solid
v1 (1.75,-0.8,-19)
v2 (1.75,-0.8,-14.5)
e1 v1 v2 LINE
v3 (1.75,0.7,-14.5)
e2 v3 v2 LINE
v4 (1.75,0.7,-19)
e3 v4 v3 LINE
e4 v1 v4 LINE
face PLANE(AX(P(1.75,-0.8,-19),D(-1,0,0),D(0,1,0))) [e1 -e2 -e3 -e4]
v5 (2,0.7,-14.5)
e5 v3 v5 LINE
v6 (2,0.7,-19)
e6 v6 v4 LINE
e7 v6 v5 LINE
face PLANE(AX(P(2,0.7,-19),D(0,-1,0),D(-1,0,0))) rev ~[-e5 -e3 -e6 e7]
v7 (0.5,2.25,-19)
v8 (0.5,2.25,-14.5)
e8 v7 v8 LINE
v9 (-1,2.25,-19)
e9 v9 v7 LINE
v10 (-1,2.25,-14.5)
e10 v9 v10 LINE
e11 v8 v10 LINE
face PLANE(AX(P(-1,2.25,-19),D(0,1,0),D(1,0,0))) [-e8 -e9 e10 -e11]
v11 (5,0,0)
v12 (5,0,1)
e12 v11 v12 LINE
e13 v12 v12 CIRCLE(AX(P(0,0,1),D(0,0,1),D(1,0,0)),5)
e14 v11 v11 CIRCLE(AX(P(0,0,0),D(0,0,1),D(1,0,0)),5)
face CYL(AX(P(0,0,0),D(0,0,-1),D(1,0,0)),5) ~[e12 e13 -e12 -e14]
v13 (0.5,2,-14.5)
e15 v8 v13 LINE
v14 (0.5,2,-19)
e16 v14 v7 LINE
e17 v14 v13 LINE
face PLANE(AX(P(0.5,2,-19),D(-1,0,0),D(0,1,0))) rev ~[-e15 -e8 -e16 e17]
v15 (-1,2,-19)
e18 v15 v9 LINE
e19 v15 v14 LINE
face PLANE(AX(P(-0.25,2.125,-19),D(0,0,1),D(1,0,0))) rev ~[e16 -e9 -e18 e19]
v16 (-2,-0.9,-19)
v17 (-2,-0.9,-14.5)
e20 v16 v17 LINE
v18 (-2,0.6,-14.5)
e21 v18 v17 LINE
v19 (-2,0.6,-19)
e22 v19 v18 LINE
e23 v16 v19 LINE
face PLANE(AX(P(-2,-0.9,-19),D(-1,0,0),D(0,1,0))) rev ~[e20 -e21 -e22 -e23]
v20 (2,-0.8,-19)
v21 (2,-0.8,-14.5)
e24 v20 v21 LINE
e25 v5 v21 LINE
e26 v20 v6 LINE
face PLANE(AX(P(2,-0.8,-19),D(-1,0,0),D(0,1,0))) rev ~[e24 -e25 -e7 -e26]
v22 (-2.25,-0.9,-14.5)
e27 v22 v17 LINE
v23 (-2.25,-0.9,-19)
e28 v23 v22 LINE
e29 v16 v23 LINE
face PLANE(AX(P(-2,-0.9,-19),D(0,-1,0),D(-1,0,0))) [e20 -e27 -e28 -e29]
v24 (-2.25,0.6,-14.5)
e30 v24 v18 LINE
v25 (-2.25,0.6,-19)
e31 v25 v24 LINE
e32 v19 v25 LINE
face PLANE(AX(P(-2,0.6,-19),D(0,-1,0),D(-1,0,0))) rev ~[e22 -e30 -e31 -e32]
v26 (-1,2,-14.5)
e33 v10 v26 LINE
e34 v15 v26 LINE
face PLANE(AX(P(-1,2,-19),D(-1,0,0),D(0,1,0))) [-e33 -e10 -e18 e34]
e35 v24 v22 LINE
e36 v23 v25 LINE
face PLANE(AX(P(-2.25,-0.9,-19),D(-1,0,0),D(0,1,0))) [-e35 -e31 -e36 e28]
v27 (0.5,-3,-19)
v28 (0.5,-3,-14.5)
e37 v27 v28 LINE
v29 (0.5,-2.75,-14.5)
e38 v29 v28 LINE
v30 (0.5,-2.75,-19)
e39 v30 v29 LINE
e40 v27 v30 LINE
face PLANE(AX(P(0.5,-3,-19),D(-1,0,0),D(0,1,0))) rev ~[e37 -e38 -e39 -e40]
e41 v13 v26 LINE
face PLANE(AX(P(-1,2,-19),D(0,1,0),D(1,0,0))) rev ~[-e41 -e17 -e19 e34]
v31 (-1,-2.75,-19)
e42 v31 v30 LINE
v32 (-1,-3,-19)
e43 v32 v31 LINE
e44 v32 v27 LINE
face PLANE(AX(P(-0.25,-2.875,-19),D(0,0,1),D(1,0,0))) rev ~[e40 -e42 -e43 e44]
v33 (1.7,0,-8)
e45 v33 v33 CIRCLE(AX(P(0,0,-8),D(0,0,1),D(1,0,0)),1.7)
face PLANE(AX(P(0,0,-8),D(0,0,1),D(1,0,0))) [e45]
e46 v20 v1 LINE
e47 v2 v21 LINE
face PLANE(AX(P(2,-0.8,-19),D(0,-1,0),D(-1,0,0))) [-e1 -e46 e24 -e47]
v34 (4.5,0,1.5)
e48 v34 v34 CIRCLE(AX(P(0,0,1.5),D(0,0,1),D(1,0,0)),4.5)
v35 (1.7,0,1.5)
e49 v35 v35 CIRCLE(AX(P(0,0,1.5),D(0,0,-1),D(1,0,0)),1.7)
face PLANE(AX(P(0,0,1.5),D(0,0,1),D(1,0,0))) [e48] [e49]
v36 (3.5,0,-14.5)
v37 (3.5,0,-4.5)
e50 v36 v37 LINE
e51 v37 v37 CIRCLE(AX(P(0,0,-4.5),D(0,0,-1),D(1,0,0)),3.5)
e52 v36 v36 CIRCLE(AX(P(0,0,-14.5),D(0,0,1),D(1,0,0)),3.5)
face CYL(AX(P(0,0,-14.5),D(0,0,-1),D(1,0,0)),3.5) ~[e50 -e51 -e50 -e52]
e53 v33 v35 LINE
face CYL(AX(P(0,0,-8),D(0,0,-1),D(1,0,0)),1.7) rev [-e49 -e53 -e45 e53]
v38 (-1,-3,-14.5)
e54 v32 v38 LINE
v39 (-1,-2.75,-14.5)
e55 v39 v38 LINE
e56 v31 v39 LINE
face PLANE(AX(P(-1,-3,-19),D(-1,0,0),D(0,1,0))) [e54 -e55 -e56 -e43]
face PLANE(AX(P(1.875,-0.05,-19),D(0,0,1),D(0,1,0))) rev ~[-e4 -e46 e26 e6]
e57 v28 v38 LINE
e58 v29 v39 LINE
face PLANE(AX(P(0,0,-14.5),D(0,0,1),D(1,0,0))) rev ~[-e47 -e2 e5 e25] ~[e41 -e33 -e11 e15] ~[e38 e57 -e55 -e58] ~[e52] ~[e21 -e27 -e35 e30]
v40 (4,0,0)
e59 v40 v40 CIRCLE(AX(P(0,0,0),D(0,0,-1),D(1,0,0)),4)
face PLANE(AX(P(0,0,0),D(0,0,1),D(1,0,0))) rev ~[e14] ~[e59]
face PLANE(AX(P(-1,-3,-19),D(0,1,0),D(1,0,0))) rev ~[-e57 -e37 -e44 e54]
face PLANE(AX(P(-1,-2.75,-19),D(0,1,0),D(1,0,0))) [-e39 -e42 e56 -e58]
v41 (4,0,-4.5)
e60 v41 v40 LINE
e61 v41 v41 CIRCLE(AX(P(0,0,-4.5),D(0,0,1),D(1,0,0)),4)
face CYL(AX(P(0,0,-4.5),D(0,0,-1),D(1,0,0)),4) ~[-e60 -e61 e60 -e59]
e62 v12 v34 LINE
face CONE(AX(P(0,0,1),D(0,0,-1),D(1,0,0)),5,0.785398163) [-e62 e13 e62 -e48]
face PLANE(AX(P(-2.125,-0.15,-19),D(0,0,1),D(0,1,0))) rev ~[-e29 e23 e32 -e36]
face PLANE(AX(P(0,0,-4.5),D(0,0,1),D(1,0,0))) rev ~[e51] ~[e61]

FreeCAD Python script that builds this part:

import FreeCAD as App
import Part
import Sketcher

V = App.Vector


def edges_at(feature, points):
    """Names of the edges that pass closest to the given points."""
    edges = feature.Shape.Edges
    near = lambda p: min(range(len(edges)), key=lambda i: edges[i].distToShape(Part.Vertex(*p))[0])
    return sorted({f"Edge{near(p) + 1}" for p in points})

doc = App.newDocument("Part")
body = doc.addObject("PartDesign::Body", "Body")

# Sketch on XY plane
sketch1 = doc.addObject("Sketcher::SketchObject", "Sketch")
body.addObject(sketch1)
sketch1.AttachmentSupport = (doc.XY_Plane, [""])
sketch1.MapMode = "FlatFace"
sketch1.AttachmentOffset = App.Placement(V(0, 0, -8), App.Rotation())
sketch1.addGeometry(Part.Circle(V(0, 0, 0), V(0, 0, 1), 1.7), False)
sketch1.addConstraint([
    Sketcher.Constraint("Coincident", 0, 3, -1, 1),
    Sketcher.Constraint("Diameter", 0, 3.4),
])
pad1 = doc.addObject("PartDesign::Pad", "Pad")
body.addObject(pad1)
pad1.Profile = sketch1
pad1.Length = 10
body2 = doc.addObject("PartDesign::Body", "Body001")

# Sketch on XY plane
sketch2 = doc.addObject("Sketcher::SketchObject", "Sketch001")
body2.addObject(sketch2)
sketch2.AttachmentSupport = (doc.getObject("XY_Plane001"), [""])
sketch2.MapMode = "FlatFace"
sketch2.AttachmentOffset = App.Placement(V(0, 0, -14.5), App.Rotation())
sketch2.addGeometry(Part.Circle(V(0, 0, 0), V(0, 0, 1), 3.5), False)
sketch2.addConstraint([
    Sketcher.Constraint("Coincident", 0, 3, -1, 1),
    Sketcher.Constraint("Diameter", 0, 7.0),
])
pad2 = doc.addObject("PartDesign::Pad", "Pad001")
body2.addObject(pad2)
pad2.Profile = sketch2
pad2.Length = 16
body3 = doc.addObject("PartDesign::Body", "Body002")

# Sketch on XY plane
sketch3 = doc.addObject("Sketcher::SketchObject", "Sketch002")
body3.addObject(sketch3)
sketch3.AttachmentSupport = (doc.getObject("XY_Plane002"), [""])
sketch3.MapMode = "FlatFace"
sketch3.AttachmentOffset = App.Placement(V(0, 0, -19), App.Rotation())
sketch3.addGeometry([
    Part.LineSegment(V(-1, -2.75, 0), V(-1, -3, 0)),
    Part.LineSegment(V(-1, -3, 0), V(0.5, -3, 0)),
    Part.LineSegment(V(0.5, -3, 0), V(0.5, -2.75, 0)),
    Part.LineSegment(V(0.5, -2.75, 0), V(-1, -2.75, 0)),
], False)
sketch3.addConstraint([
    Sketcher.Constraint("Coincident", 0, 2, 1, 1),
    Sketcher.Constraint("Coincident", 1, 2, 2, 1),
    Sketcher.Constraint("Coincident", 2, 2, 3, 1),
    Sketcher.Constraint("Coincident", 3, 2, 0, 1),
    Sketcher.Constraint("Vertical", 0),
    Sketcher.Constraint("Horizontal", 1),
    Sketcher.Constraint("Vertical", 2),
    Sketcher.Constraint("Horizontal", 3),
    Sketcher.Constraint("DistanceX", 1, 1, 1, 2, 1.5),
    Sketcher.Constraint("DistanceX", 0, 2, -1, 1, 1.0),
    Sketcher.Constraint("DistanceY", 0, 2, -1, 1, 3.0),
    Sketcher.Constraint("DistanceY", 0, 2, 0, 1, 0.25),
])
pad3 = doc.addObject("PartDesign::Pad", "Pad002")
body3.addObject(pad3)
pad3.Profile = sketch3
pad3.Length = 4.6
body4 = doc.addObject("PartDesign::Body", "Body003")

# Sketch on XY plane
sketch4 = doc.addObject("Sketcher::SketchObject", "Sketch003")
body4.addObject(sketch4)
sketch4.AttachmentSupport = (doc.getObject("XY_Plane003"), [""])
sketch4.MapMode = "FlatFace"
sketch4.AttachmentOffset = App.Placement(V(0, 0, -19), App.Rotation())
sketch4.addGeometry([
    Part.LineSegment(V(-1, 2.25, 0), V(-1, 2, 0)),
    Part.LineSegment(V(-1, 2, 0), V(0.5, 2, 0)),
    Part.LineSegment(V(0.5, 2, 0), V(0.5, 2.25, 0)),
    Part.LineSegment(V(0.5, 2.25, 0), V(-1, 2.25, 0)),
], False)
sketch4.addConstraint([
    Sketcher.Constraint("Coincident", 0, 2, 1, 1),
    Sketcher.Constraint("Coincident", 1, 2, 2, 1),
    Sketcher.Constraint("Coincident", 2, 2, 3, 1),
    Sketcher.Constraint("Coincident", 3, 2, 0, 1),
    Sketcher.Constraint("Vertical", 0),
    Sketcher.Constraint("Horizontal", 1),
    Sketcher.Constraint("Vertical", 2),
    Sketcher.Constraint("Horizontal", 3),
    Sketcher.Constraint("DistanceX", 1, 1, 1, 2, 1.5),
    Sketcher.Constraint("DistanceX", 0, 2, -1, 1, 1.0),
    Sketcher.Constraint("DistanceY", -1, 1, 0, 2, 2.0),
    Sketcher.Constraint("DistanceY", 0, 2, 0, 1, 0.25),
])
pad4 = doc.addObject("PartDesign::Pad", "Pad003")
body4.addObject(pad4)
pad4.Profile = sketch4
pad4.Length = 4.6
body5 = doc.addObject("PartDesign::Body", "Body004")

# Sketch on XY plane
sketch5 = doc.addObject("Sketcher::SketchObject", "Sketch004")
body5.addObject(sketch5)
sketch5.AttachmentSupport = (doc.getObject("XY_Plane004"), [""])
sketch5.MapMode = "FlatFace"
sketch5.addGeometry([
    Part.LineSegment(V(0, 0.25, 0), V(0, 0, 0)),
    Part.LineSegment(V(0, 0, 0), V(1.5, 0, 0)),
    Part.LineSegment(V(1.5, 0, 0), V(1.5, 0.25, 0)),
    Part.LineSegment(V(1.5, 0.25, 0), V(0, 0.25, 0)),
], False)
sketch5.addConstraint([
    Sketcher.Constraint("Coincident", 0, 2, 1, 1),
    Sketcher.Constraint("Coincident", 1, 2, 2, 1),
    Sketcher.Constraint("Coincident", 2, 2, 3, 1),
    Sketcher.Constraint("Coincident", 3, 2, 0, 1),
    Sketcher.Constraint("Vertical", 0),
    Sketcher.Constraint("Horizontal", 1),
    Sketcher.Constraint("Vertical", 2),
    Sketcher.Constraint("Horizontal", 3),
    Sketcher.Constraint("Coincident", 0, 2, -1, 1),
    Sketcher.Constraint("DistanceX", 1, 1, 1, 2, 1.5),
    Sketcher.Constraint("DistanceY", 0, 2, 0, 1, 0.25),
])
pad5 = doc.addObject("PartDesign::Pad", "Pad004")
body5.addObject(pad5)
pad5.Profile = sketch5
pad5.Length = 4.6
body6 = doc.addObject("PartDesign::Body", "Body005")
doc.recompute()

body5.Placement = App.Placement(V(2, -0.8, -19), App.Rotation(V(0, 0, 1), 90))
boolean = doc.addObject("PartDesign::Boolean", "Boolean")
body6.addObject(boolean)
boolean.Type = "Fuse"
boolean.addObjects([body5])
body7 = doc.addObject("PartDesign::Body", "Body006")

# Sketch on XY plane
sketch6 = doc.addObject("Sketcher::SketchObject", "Sketch005")
body7.addObject(sketch6)
sketch6.AttachmentSupport = (doc.getObject("XY_Plane006"), [""])
sketch6.MapMode = "FlatFace"
sketch6.addGeometry([
    Part.LineSegment(V(0, 0.25, 0), V(0, 0, 0)),
    Part.LineSegment(V(0, 0, 0), V(1.5, 0, 0)),
    Part.LineSegment(V(1.5, 0, 0), V(1.5, 0.25, 0)),
    Part.LineSegment(V(1.5, 0.25, 0), V(0, 0.25, 0)),
], False)
sketch6.addConstraint([
    Sketcher.Constraint("Coincident", 0, 2, 1, 1),
    Sketcher.Constraint("Coincident", 1, 2, 2, 1),
    Sketcher.Constraint("Coincident", 2, 2, 3, 1),
    Sketcher.Constraint("Coincident", 3, 2, 0, 1),
    Sketcher.Constraint("Vertical", 0),
    Sketcher.Constraint("Horizontal", 1),
    Sketcher.Constraint("Vertical", 2),
    Sketcher.Constraint("Horizontal", 3),
    Sketcher.Constraint("Coincident", 0, 2, -1, 1),
    Sketcher.Constraint("DistanceX", 1, 1, 1, 2, 1.5),
    Sketcher.Constraint("DistanceY", 0, 2, 0, 1, 0.25),
])
pad6 = doc.addObject("PartDesign::Pad", "Pad005")
body7.addObject(pad6)
pad6.Profile = sketch6
pad6.Length = 4.6
body8 = doc.addObject("PartDesign::Body", "Body007")
doc.recompute()

body7.Placement = App.Placement(V(-2, -0.9, -19), App.Rotation(V(0, 0, 1), 90))
boolean2 = doc.addObject("PartDesign::Boolean", "Boolean001")
body8.addObject(boolean2)
boolean2.Type = "Fuse"
boolean2.addObjects([body7])
body9 = doc.addObject("PartDesign::Body", "Body008")

# Sketch on XY plane
sketch7 = doc.addObject("Sketcher::SketchObject", "Sketch006")
body9.addObject(sketch7)
sketch7.AttachmentSupport = (doc.getObject("XY_Plane008"), [""])
sketch7.MapMode = "FlatFace"
sketch7.addGeometry(Part.Circle(V(0, 0, 0), V(0, 0, 1), 5), False)
sketch7.addConstraint([
    Sketcher.Constraint("Coincident", 0, 3, -1, 1),
    Sketcher.Constraint("Diameter", 0, 10.0),
])
pad7 = doc.addObject("PartDesign::Pad", "Pad006")
body9.addObject(pad7)
pad7.Profile = sketch7
pad7.Length = 1.5
doc.recompute()

chamfer = doc.addObject("PartDesign::Chamfer", "Chamfer")
body9.addObject(chamfer)
chamfer.Base = (pad7, edges_at(pad7, [(-5, 0, 1.5)]))
chamfer.Size = 0.5
body10 = doc.addObject("PartDesign::Body", "Body009")

# Sketch on XY plane
sketch8 = doc.addObject("Sketcher::SketchObject", "Sketch007")
body10.addObject(sketch8)
sketch8.AttachmentSupport = (doc.getObject("XY_Plane009"), [""])
sketch8.MapMode = "FlatFace"
sketch8.AttachmentOffset = App.Placement(V(0, 0, -4.5), App.Rotation())
sketch8.addGeometry(Part.Circle(V(0, 0, 0), V(0, 0, 1), 4), False)
sketch8.addConstraint([
    Sketcher.Constraint("Coincident", 0, 3, -1, 1),
    Sketcher.Constraint("Diameter", 0, 8.0),
])
pad8 = doc.addObject("PartDesign::Pad", "Pad007")
body10.addObject(pad8)
pad8.Profile = sketch8
pad8.Length = 4.6
doc.recompute()

boolean3 = doc.addObject("PartDesign::Boolean", "Boolean002")
body10.addObject(boolean3)
boolean3.Type = "Fuse"
boolean3.addObjects([body2])
doc.recompute()

boolean4 = doc.addObject("PartDesign::Boolean", "Boolean003")
body10.addObject(boolean4)
boolean4.Type = "Fuse"
boolean4.addObjects([body3])
doc.recompute()

boolean5 = doc.addObject("PartDesign::Boolean", "Boolean004")
body10.addObject(boolean5)
boolean5.Type = "Fuse"
boolean5.addObjects([body4])
doc.recompute()

boolean6 = doc.addObject("PartDesign::Boolean", "Boolean005")
body10.addObject(boolean6)
boolean6.Type = "Fuse"
boolean6.addObjects([body6])
doc.recompute()

boolean7 = doc.addObject("PartDesign::Boolean", "Boolean006")
body10.addObject(boolean7)
boolean7.Type = "Fuse"
boolean7.addObjects([body8])
doc.recompute()

boolean8 = doc.addObject("PartDesign::Boolean", "Boolean007")
body10.addObject(boolean8)
boolean8.Type = "Fuse"
boolean8.addObjects([body9])
doc.recompute()

boolean9 = doc.addObject("PartDesign::Boolean", "Boolean008")
body10.addObject(boolean9)
boolean9.Type = "Cut"
boolean9.addObjects([body])

doc.recompute()
